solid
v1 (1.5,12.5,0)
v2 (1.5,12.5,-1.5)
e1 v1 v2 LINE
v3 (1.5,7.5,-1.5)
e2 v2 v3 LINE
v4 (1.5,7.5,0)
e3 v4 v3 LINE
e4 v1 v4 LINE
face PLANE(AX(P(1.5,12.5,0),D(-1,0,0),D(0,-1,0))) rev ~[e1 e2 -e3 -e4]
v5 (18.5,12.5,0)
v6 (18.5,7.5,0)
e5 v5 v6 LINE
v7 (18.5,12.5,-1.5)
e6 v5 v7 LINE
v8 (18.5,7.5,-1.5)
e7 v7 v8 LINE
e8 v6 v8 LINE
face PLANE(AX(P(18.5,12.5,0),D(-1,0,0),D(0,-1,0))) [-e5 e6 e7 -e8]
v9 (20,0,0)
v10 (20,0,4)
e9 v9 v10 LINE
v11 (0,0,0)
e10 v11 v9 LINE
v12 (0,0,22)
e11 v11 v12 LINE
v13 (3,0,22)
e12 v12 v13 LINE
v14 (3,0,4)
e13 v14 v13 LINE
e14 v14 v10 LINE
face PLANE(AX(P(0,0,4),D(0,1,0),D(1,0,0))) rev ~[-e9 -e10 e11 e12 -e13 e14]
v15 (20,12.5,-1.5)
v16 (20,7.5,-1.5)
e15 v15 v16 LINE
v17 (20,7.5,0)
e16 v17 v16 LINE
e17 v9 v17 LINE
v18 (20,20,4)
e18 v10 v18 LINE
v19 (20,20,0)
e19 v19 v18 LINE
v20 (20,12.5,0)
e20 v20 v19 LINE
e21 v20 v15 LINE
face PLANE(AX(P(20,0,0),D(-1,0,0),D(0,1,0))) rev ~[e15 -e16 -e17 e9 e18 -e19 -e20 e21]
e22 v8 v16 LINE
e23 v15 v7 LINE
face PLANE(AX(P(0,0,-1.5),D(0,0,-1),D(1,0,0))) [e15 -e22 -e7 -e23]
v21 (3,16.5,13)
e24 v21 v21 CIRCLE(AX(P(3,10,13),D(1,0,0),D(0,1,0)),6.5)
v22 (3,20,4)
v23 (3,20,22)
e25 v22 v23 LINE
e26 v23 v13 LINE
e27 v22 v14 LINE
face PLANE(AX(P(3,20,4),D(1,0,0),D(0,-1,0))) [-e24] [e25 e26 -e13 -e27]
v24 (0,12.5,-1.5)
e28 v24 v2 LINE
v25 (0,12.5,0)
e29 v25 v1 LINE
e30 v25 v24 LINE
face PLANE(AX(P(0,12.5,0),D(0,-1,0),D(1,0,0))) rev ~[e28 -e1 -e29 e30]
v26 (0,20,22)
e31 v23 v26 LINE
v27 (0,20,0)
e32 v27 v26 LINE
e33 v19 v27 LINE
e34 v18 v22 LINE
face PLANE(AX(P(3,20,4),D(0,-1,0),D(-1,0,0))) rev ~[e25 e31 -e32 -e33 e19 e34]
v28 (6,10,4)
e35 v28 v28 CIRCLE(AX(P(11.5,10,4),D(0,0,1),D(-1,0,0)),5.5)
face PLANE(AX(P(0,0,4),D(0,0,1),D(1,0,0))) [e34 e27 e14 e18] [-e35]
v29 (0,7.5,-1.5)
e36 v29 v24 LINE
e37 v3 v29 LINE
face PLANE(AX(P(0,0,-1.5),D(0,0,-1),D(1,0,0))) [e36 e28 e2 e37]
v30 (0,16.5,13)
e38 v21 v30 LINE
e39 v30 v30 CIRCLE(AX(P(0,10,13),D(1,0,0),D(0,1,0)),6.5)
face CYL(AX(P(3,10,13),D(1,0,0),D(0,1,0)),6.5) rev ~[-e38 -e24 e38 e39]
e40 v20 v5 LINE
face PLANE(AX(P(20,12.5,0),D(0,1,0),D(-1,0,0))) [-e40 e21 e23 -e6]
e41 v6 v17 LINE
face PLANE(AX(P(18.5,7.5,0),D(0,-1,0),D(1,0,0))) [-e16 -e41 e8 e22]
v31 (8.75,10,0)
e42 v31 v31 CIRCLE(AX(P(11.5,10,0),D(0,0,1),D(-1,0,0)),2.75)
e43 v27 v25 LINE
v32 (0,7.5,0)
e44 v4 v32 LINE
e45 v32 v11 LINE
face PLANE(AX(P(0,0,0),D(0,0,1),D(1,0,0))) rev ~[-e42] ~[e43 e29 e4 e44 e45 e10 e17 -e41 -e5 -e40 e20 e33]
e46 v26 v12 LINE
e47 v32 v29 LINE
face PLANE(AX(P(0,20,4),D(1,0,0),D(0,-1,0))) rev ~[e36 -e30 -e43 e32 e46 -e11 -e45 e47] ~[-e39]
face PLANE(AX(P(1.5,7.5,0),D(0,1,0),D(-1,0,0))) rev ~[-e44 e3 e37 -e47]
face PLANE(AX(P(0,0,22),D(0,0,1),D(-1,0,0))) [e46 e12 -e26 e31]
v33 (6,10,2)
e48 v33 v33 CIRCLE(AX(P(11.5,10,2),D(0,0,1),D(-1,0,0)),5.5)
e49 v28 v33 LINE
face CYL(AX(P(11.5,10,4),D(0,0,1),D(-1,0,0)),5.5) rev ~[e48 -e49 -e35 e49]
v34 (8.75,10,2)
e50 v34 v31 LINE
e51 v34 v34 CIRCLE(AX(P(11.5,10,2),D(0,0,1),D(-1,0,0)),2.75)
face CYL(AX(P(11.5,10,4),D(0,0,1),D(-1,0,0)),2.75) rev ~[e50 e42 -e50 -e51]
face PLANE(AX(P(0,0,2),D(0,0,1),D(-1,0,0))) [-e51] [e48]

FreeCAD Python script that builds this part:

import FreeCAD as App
import Part
import Sketcher

V = App.Vector


def add_polygon(sketch, points):
    """Adds a closed chain of lines whose ends are joined by coincident constraints."""
    first, n = sketch.GeometryCount, len(points)
    for a, b in zip(points, points[1:] + points[:1]):
        sketch.addGeometry(Part.LineSegment(App.Vector(*a, 0), App.Vector(*b, 0)), False)
    for i in range(n):
        sketch.addConstraint(Sketcher.Constraint("Coincident", first + i, 2, first + (i + 1) % n, 1))

doc = App.newDocument("Part")
params = doc.addObject("Spreadsheet::Sheet", "Params")
for row, (alias, value) in enumerate([
    ("sketch1_width", "20 mm"),
    ("pad1_length", "4 mm"),
    ("sketch2_diameter", "5.5 mm"),
    ("pocket1_length", "4 mm"),
    ("sketch3_diameter", "11 mm"),
    ("sketch3_diameter2", "5.5 mm"),
    ("pocket2_length", "2 mm"),
    ("sketch4_width", "3 mm"),
    ("sketch4_height", "20 mm"),
    ("pad2_length", "18 mm"),
    ("sketch5_diameter", "13 mm"),
    ("pocket3_length", "3 mm"),
    ("sketch6_height", "5 mm"),
    ("sketch6_width", "1.5 mm"),
    ("pad3_length", "1.5 mm"),
], start=1):
    params.set(f"A{row}", alias)
    params.set(f"B{row}", "=" + value)
    params.setAlias(f"B{row}", alias)

body = doc.addObject("PartDesign::Body", "Body")

sketch1 = body.newObject("Sketcher::SketchObject", "Sketch")
sketch1.AttachmentSupport = (doc.getObject("XY_Plane"), [""])
sketch1.MapMode = "FlatFace"
add_polygon(sketch1, [(0, 20), (0, 0), (20, 0), (20, 20)])
sketch1.addConstraint([
    Sketcher.Constraint("Vertical", 0),
    Sketcher.Constraint("Horizontal", 1),
    Sketcher.Constraint("Vertical", 2),
    Sketcher.Constraint("Horizontal", 3),
    Sketcher.Constraint("Coincident", 0, 2, -1, 1),
    Sketcher.Constraint("Equal", 3, 0),
    Sketcher.Constraint("DistanceX", 1, 1, 1, 2, 20.0),
])
sketch1.setExpression("Constraints[10]", "Params.sketch1_width")
pad1 = body.newObject("PartDesign::Pad", "Pad")
pad1.Profile = sketch1
pad1.setExpression("Length", "Params.pad1_length")

sketch2 = body.newObject("Sketcher::SketchObject", "Sketch001")
sketch2.AttachmentSupport = (doc.getObject("XY_Plane"), [""])
sketch2.MapMode = "FlatFace"
sketch2.AttachmentOffset = App.Placement(V(0, 0, 4), App.Rotation())
sketch2.addGeometry(Part.Circle(V(11.5, 10, 0), V(0, 0, 1), 2.8), False)
sketch2.addConstraint([
    Sketcher.Constraint("Diameter", 0, 5.5),
    Sketcher.Constraint("DistanceY", -1, 1, 0, 3, 10.0),
    Sketcher.Constraint("DistanceX", -1, 1, 0, 3, 11.5),
])
sketch2.setExpression("Constraints[0]", "Params.sketch2_diameter")
pocket1 = body.newObject("PartDesign::Pocket", "Pocket")
pocket1.Profile = sketch2
pocket1.setExpression("Length", "Params.pocket1_length")

sketch3 = body.newObject("Sketcher::SketchObject", "Sketch002")
sketch3.AttachmentSupport = (doc.getObject("XY_Plane"), [""])
sketch3.MapMode = "FlatFace"
sketch3.AttachmentOffset = App.Placement(V(0, 0, 4), App.Rotation())
sketch3.addGeometry([
    Part.Circle(V(11.5, 10, 0), V(0, 0, 1), 5.5),
    Part.Circle(V(11.5, 10, 0), V(0, 0, 1), 2.8),
], False)
sketch3.addConstraint([
    Sketcher.Constraint("Coincident", 1, 3, 0, 3),
    Sketcher.Constraint("Diameter", 0, 11.0),
    Sketcher.Constraint("Diameter", 1, 5.5),
    Sketcher.Constraint("DistanceY", -1, 1, 0, 3, 10.0),
    Sketcher.Constraint("DistanceX", -1, 1, 0, 3, 11.5),
])
sketch3.setExpression("Constraints[1]", "Params.sketch3_diameter")
sketch3.setExpression("Constraints[2]", "Params.sketch3_diameter2")
pocket2 = body.newObject("PartDesign::Pocket", "Pocket001")
pocket2.Profile = sketch3
pocket2.setExpression("Length", "Params.pocket2_length")

sketch4 = body.newObject("Sketcher::SketchObject", "Sketch003")
sketch4.AttachmentSupport = (doc.getObject("XY_Plane"), [""])
sketch4.MapMode = "FlatFace"
sketch4.AttachmentOffset = App.Placement(V(0, 0, 4), App.Rotation())
add_polygon(sketch4, [(3, 20), (0, 20), (0, 0), (3, 0)])
sketch4.addConstraint([
    Sketcher.Constraint("Horizontal", 0),
    Sketcher.Constraint("Vertical", 1),
    Sketcher.Constraint("Horizontal", 2),
    Sketcher.Constraint("Vertical", 3),
    Sketcher.Constraint("Coincident", 1, 2, -1, 1),
    Sketcher.Constraint("DistanceX", 0, 2, 0, 1, 3.0),
    Sketcher.Constraint("DistanceY", 1, 2, 1, 1, 20.0),
])
sketch4.setExpression("Constraints[9]", "Params.sketch4_width")
sketch4.setExpression("Constraints[10]", "Params.sketch4_height")
pad2 = body.newObject("PartDesign::Pad", "Pad001")
pad2.Profile = sketch4
pad2.setExpression("Length", "Params.pad2_length")

sketch5 = body.newObject("Sketcher::SketchObject", "Sketch004")
sketch5.AttachmentSupport = (doc.getObject("YZ_Plane"), [""])
sketch5.MapMode = "FlatFace"
sketch5.AttachmentOffset = App.Placement(V(0, 0, 3), App.Rotation())
sketch5.addGeometry(Part.Circle(V(10, 13, 0), V(0, 0, 1), 6), False)
sketch5.addConstraint([
    Sketcher.Constraint("Diameter", 0, 13.0),
    Sketcher.Constraint("DistanceY", -1, 1, 0, 3, 13.0),
    Sketcher.Constraint("DistanceX", -1, 1, 0, 3, 10.0),
])
sketch5.setExpression("Constraints[0]", "Params.sketch5_diameter")
pocket3 = body.newObject("PartDesign::Pocket", "Pocket002")
pocket3.Profile = sketch5
pocket3.setExpression("Length", "Params.pocket3_length")

sketch6 = body.newObject("Sketcher::SketchObject", "Sketch005")
sketch6.AttachmentSupport = (doc.getObject("XY_Plane"), [""])
sketch6.MapMode = "FlatFace"
add_polygon(sketch6, [(1.5, 7.5), (0, 7.5), (0, 12.5), (1.5, 12.5)])
add_polygon(sketch6, [(20, 12.5), (20, 7.5), (18.5, 7.5), (18.5, 12.5)])
sketch6.addConstraint([
    Sketcher.Constraint("Horizontal", 0),
    Sketcher.Constraint("Vertical", 1),
    Sketcher.Constraint("Horizontal", 2),
    Sketcher.Constraint("Vertical", 3),
    Sketcher.Constraint("Vertical", 4),
    Sketcher.Constraint("Horizontal", 5),
    Sketcher.Constraint("Vertical", 6),
    Sketcher.Constraint("Horizontal", 7),
    Sketcher.Constraint("PointOnObject", 0, 2, -2),
    Sketcher.Constraint("Horizontal", 3, 2, 4, 2),
    Sketcher.Constraint("Horizontal", 2, 2, 6, 2),
    Sketcher.Constraint("Equal", 2, 5),
    Sketcher.Constraint("DistanceY", 1, 1, 1, 2, 5.0),
    Sketcher.Constraint("DistanceX", 0, 2, 0, 1, 1.5),
    Sketcher.Constraint("DistanceY", -1, 1, 0, 2, 7.5),
    Sketcher.Constraint("DistanceX", -1, 1, 4, 2, 20.0),
])
sketch6.setExpression("Constraints[20]", "Params.sketch6_height")
sketch6.setExpression("Constraints[21]", "Params.sketch6_width")
pad3 = body.newObject("PartDesign::Pad", "Pad002")
pad3.Profile = sketch6
pad3.setExpression("Length", "Params.pad3_length")
pad3.Reversed = True

doc.recompute()
